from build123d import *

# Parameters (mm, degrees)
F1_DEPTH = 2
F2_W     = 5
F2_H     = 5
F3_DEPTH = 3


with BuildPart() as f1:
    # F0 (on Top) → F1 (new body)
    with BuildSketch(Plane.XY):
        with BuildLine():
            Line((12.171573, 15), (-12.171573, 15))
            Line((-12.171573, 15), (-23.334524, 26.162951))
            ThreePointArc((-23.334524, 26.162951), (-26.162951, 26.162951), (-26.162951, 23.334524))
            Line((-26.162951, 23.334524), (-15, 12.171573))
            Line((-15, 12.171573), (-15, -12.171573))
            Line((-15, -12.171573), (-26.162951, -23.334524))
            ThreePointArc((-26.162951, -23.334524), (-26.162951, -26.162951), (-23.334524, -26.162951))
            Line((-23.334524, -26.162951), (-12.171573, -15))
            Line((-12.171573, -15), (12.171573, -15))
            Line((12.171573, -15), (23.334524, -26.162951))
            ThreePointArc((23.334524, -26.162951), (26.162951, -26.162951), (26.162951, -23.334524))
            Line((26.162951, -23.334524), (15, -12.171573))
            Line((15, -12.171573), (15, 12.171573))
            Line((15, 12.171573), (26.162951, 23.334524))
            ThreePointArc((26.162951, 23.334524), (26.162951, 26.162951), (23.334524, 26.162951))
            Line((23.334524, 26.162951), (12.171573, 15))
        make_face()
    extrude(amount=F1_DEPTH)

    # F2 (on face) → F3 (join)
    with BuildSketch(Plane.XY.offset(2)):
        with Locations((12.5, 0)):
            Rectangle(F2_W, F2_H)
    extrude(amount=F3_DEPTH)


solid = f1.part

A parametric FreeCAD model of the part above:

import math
import FreeCAD as App
import Part
import Sketcher
from FreeCAD import Vector


def add_polygon(sketch, points):
    """Adds a closed chain of lines whose ends are joined by coincident constraints."""
    first, n = sketch.GeometryCount, len(points)
    for a, b in zip(points, points[1:] + points[:1]):
        sketch.addGeometry(Part.LineSegment(App.Vector(*a, 0), App.Vector(*b, 0)), False)
    for i in range(n):
        sketch.addConstraint(Sketcher.Constraint("Coincident", first + i, 2, first + (i + 1) % n, 1))

doc = App.newDocument("Part")
body = doc.addObject("PartDesign::Body", "Body")

# Sketch on XY plane
sketch1 = body.newObject("Sketcher::SketchObject", "Sketch")
sketch1.AttachmentSupport = (doc.getObject("XY_Plane"), [""])
sketch1.MapMode = "FlatFace"
sketch1.addGeometry([
    Part.LineSegment(Vector(12.2, 15, 0), Vector(-12.2, 15, 0)),  # 0
    Part.LineSegment(Vector(-12.2, 15, 0), Vector(-23.3, 26.2, 0)),  # 1
    Part.ArcOfCircle(Part.Circle(Vector(-24.7, 24.7, 0), Vector(0, 0, 1), 2), math.radians(45), math.radians(225)),  # 2
    Part.LineSegment(Vector(-26.2, 23.3, 0), Vector(-15, 12.2, 0)),  # 3
    Part.LineSegment(Vector(-15, 12.2, 0), Vector(-15, -12.2, 0)),  # 4
    Part.LineSegment(Vector(-15, -12.2, 0), Vector(-26.2, -23.3, 0)),  # 5
    Part.ArcOfCircle(Part.Circle(Vector(-24.7, -24.7, 0), Vector(0, 0, 1), 2), math.radians(135), math.radians(315)),  # 6
    Part.LineSegment(Vector(-23.3, -26.2, 0), Vector(-12.2, -15, 0)),  # 7
    Part.LineSegment(Vector(-12.2, -15, 0), Vector(12.2, -15, 0)),  # 8
    Part.LineSegment(Vector(12.2, -15, 0), Vector(23.3, -26.2, 0)),  # 9
    Part.ArcOfCircle(Part.Circle(Vector(24.7, -24.7, 0), Vector(0, 0, 1), 2), math.radians(-135), math.radians(45)),  # 10
    Part.LineSegment(Vector(26.2, -23.3, 0), Vector(15, -12.2, 0)),  # 11
    Part.LineSegment(Vector(15, -12.2, 0), Vector(15, 12.2, 0)),  # 12
    Part.LineSegment(Vector(15, 12.2, 0), Vector(26.2, 23.3, 0)),  # 13
    Part.ArcOfCircle(Part.Circle(Vector(24.7, 24.7, 0), Vector(0, 0, 1), 2), math.radians(-45), math.radians(135)),  # 14
    Part.LineSegment(Vector(23.3, 26.2, 0), Vector(12.2, 15, 0)),  # 15
], False)
sketch1.addConstraint([
    Sketcher.Constraint("Coincident", 0, 2, 1, 1),
    Sketcher.Constraint("Tangent", 1, 2, 2, 1),
    Sketcher.Constraint("Tangent", 2, 2, 3, 1),
    Sketcher.Constraint("Coincident", 3, 2, 4, 1),
    Sketcher.Constraint("Coincident", 4, 2, 5, 1),
    Sketcher.Constraint("Tangent", 5, 2, 6, 1),
    Sketcher.Constraint("Tangent", 6, 2, 7, 1),
    Sketcher.Constraint("Coincident", 7, 2, 8, 1),
    Sketcher.Constraint("Coincident", 8, 2, 9, 1),
    Sketcher.Constraint("Tangent", 9, 2, 10, 1),
    Sketcher.Constraint("Tangent", 10, 2, 11, 1),
    Sketcher.Constraint("Coincident", 11, 2, 12, 1),
    Sketcher.Constraint("Coincident", 12, 2, 13, 1),
    Sketcher.Constraint("Tangent", 13, 2, 14, 1),
    Sketcher.Constraint("Tangent", 14, 2, 15, 1),
    Sketcher.Constraint("Coincident", 15, 2, 0, 1),
    Sketcher.Constraint("Horizontal", 0),
    Sketcher.Constraint("Vertical", 4),
    Sketcher.Constraint("Horizontal", 8),
    Sketcher.Constraint("Vertical", 12),
    Sketcher.Constraint("Equal", 2, 6),
    Sketcher.Constraint("Equal", 6, 10),
    Sketcher.Constraint("Equal", 10, 14),
    Sketcher.Constraint("Symmetric", 2, 3, 10, 3, -1, 1),
    Sketcher.Constraint("Symmetric", 6, 3, 14, 3, -1, 1),
    Sketcher.Constraint("Symmetric", 0, 2, 8, 2, -1, 1),
    Sketcher.Constraint("Symmetric", 3, 2, 11, 2, -1, 1),
    Sketcher.Constraint("Symmetric", 6, 3, 10, 3, -2),
    Sketcher.Constraint("Parallel", 1, 3),
    Sketcher.Constraint("Perpendicular", 3, 5),
    Sketcher.Constraint("Parallel", 5, 7),
    Sketcher.Constraint("Perpendicular", 11, 13),
    Sketcher.Constraint("Parallel", 13, 15),
    Sketcher.Constraint("Horizontal", 6, 2, 9, 2),
    Sketcher.Constraint("Equal", 8, 4),
    Sketcher.Constraint("Equal", 1, 3),
    Sketcher.Constraint("Radius", 2, 2.0),
    Sketcher.Constraint("DistanceY", -1, 1, 0, 2, 15.0),
    Sketcher.Constraint("DistanceY", -1, 1, 1, 2, 26.162951),
])
pad1 = body.newObject("PartDesign::Pad", "Pad")
pad1.Profile = sketch1
pad1.Length = 2

# Sketch on XY plane
sketch2 = body.newObject("Sketcher::SketchObject", "Sketch001")
sketch2.AttachmentSupport = (doc.getObject("XY_Plane"), [""])
sketch2.MapMode = "FlatFace"
sketch2.AttachmentOffset = App.Placement(Vector(0, 0, 2), App.Rotation())
add_polygon(sketch2, [(10, 2), (10, -2), (15, -2), (15, 2)])  # lines 0-3
sketch2.addConstraint([
    Sketcher.Constraint("Vertical", 0),
    Sketcher.Constraint("Horizontal", 1),
    Sketcher.Constraint("Vertical", 2),
    Sketcher.Constraint("Horizontal", 3),
    Sketcher.Constraint("Equal", 3, 0),
    Sketcher.Constraint("DistanceX", 1, 1, 1, 2, 5.0),
    Sketcher.Constraint("DistanceX", -1, 1, 0, 2, 10.0),
    Sketcher.Constraint("DistanceY", 0, 2, -1, 1, 2.5),
])
pad2 = body.newObject("PartDesign::Pad", "Pad001")
pad2.Profile = sketch2
pad2.Length = 3

doc.recompute()
